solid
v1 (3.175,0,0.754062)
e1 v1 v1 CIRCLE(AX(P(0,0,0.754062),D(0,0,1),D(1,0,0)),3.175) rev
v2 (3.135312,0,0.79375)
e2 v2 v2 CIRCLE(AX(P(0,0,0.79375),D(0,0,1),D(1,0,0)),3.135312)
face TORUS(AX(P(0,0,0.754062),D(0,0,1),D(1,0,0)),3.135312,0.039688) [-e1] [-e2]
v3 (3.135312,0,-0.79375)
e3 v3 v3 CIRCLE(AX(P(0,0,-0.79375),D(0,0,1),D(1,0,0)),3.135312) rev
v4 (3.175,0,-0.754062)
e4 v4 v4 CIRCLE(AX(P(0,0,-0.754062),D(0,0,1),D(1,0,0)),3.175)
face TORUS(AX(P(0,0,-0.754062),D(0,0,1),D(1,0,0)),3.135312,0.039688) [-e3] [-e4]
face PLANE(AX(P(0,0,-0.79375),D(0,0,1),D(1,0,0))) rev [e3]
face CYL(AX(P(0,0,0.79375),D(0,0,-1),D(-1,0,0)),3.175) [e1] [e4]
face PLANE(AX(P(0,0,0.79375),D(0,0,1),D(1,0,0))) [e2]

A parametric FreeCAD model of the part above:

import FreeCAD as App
import Part
import Sketcher
from FreeCAD import Vector
Q = App.Units.Quantity


def edges_at(feature, points):
    """Names of the edges that pass closest to the given points."""
    edges = feature.Shape.Edges
    near = lambda p: min(range(len(edges)), key=lambda i: edges[i].distToShape(Part.Vertex(*p))[0])
    return sorted({f"Edge{near(p) + 1}" for p in points})

doc = App.newDocument("Part")
body = doc.addObject("PartDesign::Body", "Body")

# Sketch on XY plane
sketch1 = body.newObject("Sketcher::SketchObject", "Sketch")
sketch1.AttachmentSupport = (doc.getObject("XY_Plane"), [""])
sketch1.MapMode = "FlatFace"
sketch1.addGeometry(Part.Circle(Vector(0, 0, 0), Vector(0, 0, 1), 3.2), False)
sketch1.addConstraint([
    Sketcher.Constraint("Coincident", 0, 3, -1, 1),
    Sketcher.Constraint("Diameter", 0, Q("0.25 in")),
])
pad1 = body.newObject("PartDesign::Pad", "Pad")
pad1.Profile = sketch1
pad1.Type = "TwoLengths"
pad1.Length = Q("0.03125 in")
pad1.Length2 = Q("0.03125 in")
doc.recompute()

fillet = body.newObject("PartDesign::Fillet", "Fillet")
fillet.Base = (pad1, edges_at(pad1, [(-3.175, 0, -0.794), (-3.175, 0, 0.794)]))
fillet.Radius = 0.039688

doc.recompute()
